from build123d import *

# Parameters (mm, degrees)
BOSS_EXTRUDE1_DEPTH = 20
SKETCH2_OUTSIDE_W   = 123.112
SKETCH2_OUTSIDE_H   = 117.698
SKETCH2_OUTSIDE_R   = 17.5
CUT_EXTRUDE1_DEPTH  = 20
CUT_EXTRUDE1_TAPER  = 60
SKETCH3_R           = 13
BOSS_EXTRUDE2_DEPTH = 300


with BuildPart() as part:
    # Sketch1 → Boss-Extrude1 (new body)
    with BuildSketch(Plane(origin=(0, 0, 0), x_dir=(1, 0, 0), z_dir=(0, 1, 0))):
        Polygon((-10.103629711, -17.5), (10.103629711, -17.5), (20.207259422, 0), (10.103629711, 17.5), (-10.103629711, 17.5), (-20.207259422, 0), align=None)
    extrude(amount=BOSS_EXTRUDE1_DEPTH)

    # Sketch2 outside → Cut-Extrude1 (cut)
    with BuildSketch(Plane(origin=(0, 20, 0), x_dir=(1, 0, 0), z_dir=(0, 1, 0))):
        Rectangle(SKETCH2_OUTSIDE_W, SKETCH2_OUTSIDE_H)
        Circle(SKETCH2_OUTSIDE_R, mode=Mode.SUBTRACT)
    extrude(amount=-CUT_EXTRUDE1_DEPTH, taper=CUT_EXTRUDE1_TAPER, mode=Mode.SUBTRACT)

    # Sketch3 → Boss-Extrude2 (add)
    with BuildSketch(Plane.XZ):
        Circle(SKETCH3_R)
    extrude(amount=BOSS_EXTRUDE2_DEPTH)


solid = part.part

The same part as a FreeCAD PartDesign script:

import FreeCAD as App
import Part
import Sketcher

V = App.Vector
Q = App.Units.Quantity

doc = App.newDocument("Part")
body = doc.addObject("PartDesign::Body", "Body")

# Sketch on XZ plane
sketch1 = doc.addObject("Sketcher::SketchObject", "Sketch")
body.addObject(sketch1)
sketch1.AttachmentSupport = (doc.XZ_Plane, [""])
sketch1.MapMode = "FlatFace"
sketch1.addGeometry(Part.LineSegment(V(-10, 18, 0), V(10, 18, 0)), False)
sketch1.addGeometry(Part.LineSegment(V(10, 18, 0), V(20, 0, 0)), False)
sketch1.addGeometry(Part.LineSegment(V(20, 0, 0), V(10, -18, 0)), False)
sketch1.addGeometry(Part.LineSegment(V(10, -18, 0), V(-10, -18, 0)), False)
sketch1.addGeometry(Part.LineSegment(V(-10, -18, 0), V(-20, 0, 0)), False)
sketch1.addGeometry(Part.LineSegment(V(-20, 0, 0), V(-10, 18, 0)), False)
sketch1.addConstraint(Sketcher.Constraint("Coincident", 0, 2, 1, 1))
sketch1.addConstraint(Sketcher.Constraint("Coincident", 1, 2, 2, 1))
sketch1.addConstraint(Sketcher.Constraint("Coincident", 2, 2, 3, 1))
sketch1.addConstraint(Sketcher.Constraint("Coincident", 3, 2, 4, 1))
sketch1.addConstraint(Sketcher.Constraint("Coincident", 4, 2, 5, 1))
sketch1.addConstraint(Sketcher.Constraint("Coincident", 5, 2, 0, 1))
sketch1.addConstraint(Sketcher.Constraint("Horizontal", 0))
sketch1.addConstraint(Sketcher.Constraint("Horizontal", 3))
sketch1.addConstraint(Sketcher.Constraint("Symmetric", 0, 2, 3, 2, -1, 1))
sketch1.addConstraint(Sketcher.Constraint("Symmetric", 1, 2, 4, 2, -1, 1))
sketch1.addConstraint(Sketcher.Constraint("PointOnObject", 1, 2, -1))
sketch1.addConstraint(Sketcher.Constraint("Parallel", 2, 5))
sketch1.addConstraint(Sketcher.Constraint("Vertical", 0, 2, 2, 2))
sketch1.addConstraint(Sketcher.Constraint("Angle", 1, Q("-60 deg")))
sketch1.addConstraint(Sketcher.Constraint("DistanceY", 2, 2, 0, 2, Q("35 mm")))
sketch1.addConstraint(Sketcher.Constraint("DistanceX", 0, 1, 0, 2, Q("20.207259 mm")))
pad1 = doc.addObject("PartDesign::Pad", "Pad")
body.addObject(pad1)
pad1.Profile = sketch1
pad1.Length = 20
pad1.Reversed = True

# Sketch on XZ plane
sketch2 = doc.addObject("Sketcher::SketchObject", "Sketch001")
body.addObject(sketch2)
sketch2.AttachmentSupport = (doc.XZ_Plane, [""])
sketch2.MapMode = "FlatFace"
sketch2.AttachmentOffset = App.Placement(V(0, 0, -20), App.Rotation())
sketch2.addGeometry(Part.LineSegment(V(-62, -59, 0), V(-62, 59, 0)), False)
sketch2.addGeometry(Part.LineSegment(V(-62, 59, 0), V(62, 59, 0)), False)
sketch2.addGeometry(Part.LineSegment(V(62, 59, 0), V(62, -59, 0)), False)
sketch2.addGeometry(Part.LineSegment(V(62, -59, 0), V(-62, -59, 0)), False)
sketch2.addGeometry(Part.Circle(V(0, 0, 0), V(0, 0, 1), 18), False)
sketch2.addConstraint(Sketcher.Constraint("Coincident", 0, 2, 1, 1))
sketch2.addConstraint(Sketcher.Constraint("Coincident", 1, 2, 2, 1))
sketch2.addConstraint(Sketcher.Constraint("Coincident", 2, 2, 3, 1))
sketch2.addConstraint(Sketcher.Constraint("Coincident", 3, 2, 0, 1))
sketch2.addConstraint(Sketcher.Constraint("Vertical", 0))
sketch2.addConstraint(Sketcher.Constraint("Horizontal", 1))
sketch2.addConstraint(Sketcher.Constraint("Vertical", 2))
sketch2.addConstraint(Sketcher.Constraint("Horizontal", 3))
sketch2.addConstraint(Sketcher.Constraint("Coincident", 4, 3, -1, 1))
sketch2.addConstraint(Sketcher.Constraint("Symmetric", 0, 2, 2, 2, -1, 1))
sketch2.addConstraint(Sketcher.Constraint("Diameter", 4, Q("35 mm")))
sketch2.addConstraint(Sketcher.Constraint("DistanceX", 1, 1, 1, 2, Q("123.112 mm")))
sketch2.addConstraint(Sketcher.Constraint("DistanceY", 0, 1, 0, 2, Q("117.698 mm")))
pocket1 = doc.addObject("PartDesign::Pocket", "Pocket")
body.addObject(pocket1)
pocket1.Profile = sketch2
pocket1.Length = 20
pocket1.Reversed = True
pocket1.TaperAngle = 60

# Sketch on XZ plane
sketch3 = doc.addObject("Sketcher::SketchObject", "Sketch002")
body.addObject(sketch3)
sketch3.AttachmentSupport = (doc.XZ_Plane, [""])
sketch3.MapMode = "FlatFace"
sketch3.addGeometry(Part.Circle(V(0, 0, 0), V(0, 0, 1), 13), False)
sketch3.addConstraint(Sketcher.Constraint("Coincident", 0, 3, -1, 1))
sketch3.addConstraint(Sketcher.Constraint("Diameter", 0, Q("26 mm")))
pad2 = doc.addObject("PartDesign::Pad", "Pad001")
body.addObject(pad2)
pad2.Profile = sketch3
pad2.Length = 300

doc.recompute()
